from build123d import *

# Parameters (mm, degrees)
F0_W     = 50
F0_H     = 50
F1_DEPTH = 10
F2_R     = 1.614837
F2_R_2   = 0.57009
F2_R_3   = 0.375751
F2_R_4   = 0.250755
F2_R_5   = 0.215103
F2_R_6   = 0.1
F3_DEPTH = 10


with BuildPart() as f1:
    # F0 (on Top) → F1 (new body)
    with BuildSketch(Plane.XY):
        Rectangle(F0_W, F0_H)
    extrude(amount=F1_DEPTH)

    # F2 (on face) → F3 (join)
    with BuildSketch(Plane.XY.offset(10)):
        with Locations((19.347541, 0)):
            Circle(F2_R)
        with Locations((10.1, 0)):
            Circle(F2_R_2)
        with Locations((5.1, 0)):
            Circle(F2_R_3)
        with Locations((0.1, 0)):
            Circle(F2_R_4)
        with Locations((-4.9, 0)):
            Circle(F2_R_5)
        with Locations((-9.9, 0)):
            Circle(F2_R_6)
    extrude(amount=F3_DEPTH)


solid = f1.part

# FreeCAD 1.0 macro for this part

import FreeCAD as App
import Part
import Sketcher
from FreeCAD import Vector
Q = App.Units.Quantity

doc = App.newDocument("Part")
params = doc.addObject("Spreadsheet::Sheet", "Params")
for row, (alias, value) in enumerate([
    ("sketch1_width", "50 mm"),
    ("pad1_length", "10 mm"),
    ("sketch2_diameter", "0.2 mm"),
    ("pad2_length", "10 mm"),
], start=1):
    params.set(f"A{row}", alias)
    params.set(f"B{row}", "=" + value)
    params.setAlias(f"B{row}", alias)

body = doc.addObject("PartDesign::Body", "Body")

# Sketch on XY plane
sketch1 = body.newObject("Sketcher::SketchObject", "Sketch")
sketch1.AttachmentSupport = (doc.getObject("XY_Plane"), [""])
sketch1.MapMode = "FlatFace"
sketch1.addGeometry(Part.LineSegment(Vector(-25, 25, 0), Vector(-25, -25, 0)), False)
sketch1.addGeometry(Part.LineSegment(Vector(-25, -25, 0), Vector(25, -25, 0)), False)
sketch1.addGeometry(Part.LineSegment(Vector(25, -25, 0), Vector(25, 25, 0)), False)
sketch1.addGeometry(Part.LineSegment(Vector(25, 25, 0), Vector(-25, 25, 0)), False)
sketch1.addConstraint(Sketcher.Constraint("Coincident", 0, 2, 1, 1))
sketch1.addConstraint(Sketcher.Constraint("Coincident", 1, 2, 2, 1))
sketch1.addConstraint(Sketcher.Constraint("Coincident", 2, 2, 3, 1))
sketch1.addConstraint(Sketcher.Constraint("Coincident", 3, 2, 0, 1))
sketch1.addConstraint(Sketcher.Constraint("Vertical", 0))
sketch1.addConstraint(Sketcher.Constraint("Horizontal", 1))
sketch1.addConstraint(Sketcher.Constraint("Vertical", 2))
sketch1.addConstraint(Sketcher.Constraint("Horizontal", 3))
sketch1.addConstraint(Sketcher.Constraint("Symmetric", 0, 2, 2, 2, -1, 1))
sketch1.addConstraint(Sketcher.Constraint("Equal", 3, 0))
sketch1.addConstraint(Sketcher.Constraint("DistanceX", 1, 1, 1, 2, Q("50 mm")))
sketch1.setExpression("Constraints[10]", "Params.sketch1_width")
pad1 = body.newObject("PartDesign::Pad", "Pad")
pad1.Profile = sketch1
pad1.setExpression("Length", "Params.pad1_length")

# Sketch on XY plane
sketch2 = body.newObject("Sketcher::SketchObject", "Sketch001")
sketch2.AttachmentSupport = (doc.getObject("XY_Plane"), [""])
sketch2.MapMode = "FlatFace"
sketch2.AttachmentOffset = App.Placement(Vector(0, 0, 10), App.Rotation())
sketch2.addGeometry(Part.Circle(Vector(19.35, 0, 0), Vector(0, 0, 1), 1.61), False)
sketch2.addGeometry(Part.Circle(Vector(10.1, 0, 0), Vector(0, 0, 1), 0.57), False)
sketch2.addGeometry(Part.Circle(Vector(5.1, 0, 0), Vector(0, 0, 1), 0.38), False)
sketch2.addGeometry(Part.Circle(Vector(0.1, 0, 0), Vector(0, 0, 1), 0.25), False)
sketch2.addGeometry(Part.Circle(Vector(-4.9, 0, 0), Vector(0, 0, 1), 0.22), False)
sketch2.addGeometry(Part.Circle(Vector(-9.9, 0, 0), Vector(0, 0, 1), 0.1), False)
sketch2.addConstraint(Sketcher.Constraint("PointOnObject", 0, 3, -1))
sketch2.addConstraint(Sketcher.Constraint("PointOnObject", 1, 3, -1))
sketch2.addConstraint(Sketcher.Constraint("PointOnObject", 2, 3, -1))
sketch2.addConstraint(Sketcher.Constraint("PointOnObject", 3, 3, -1))
sketch2.addConstraint(Sketcher.Constraint("PointOnObject", 4, 3, -1))
sketch2.addConstraint(Sketcher.Constraint("PointOnObject", 5, 3, -1))
sketch2.addConstraint(Sketcher.Constraint("Diameter", 5, Q("0.2 mm")))
sketch2.addConstraint(Sketcher.Constraint("DistanceX", 2, 3, 1, 3, Q("5 mm")))
sketch2.addConstraint(Sketcher.Constraint("DistanceX", 3, 3, 2, 3, Q("5 mm")))
sketch2.addConstraint(Sketcher.Constraint("DistanceX", 4, 3, 3, 3, Q("5 mm")))
sketch2.addConstraint(Sketcher.Constraint("DistanceX", 5, 3, 4, 3, Q("5 mm")))
sketch2.addConstraint(Sketcher.Constraint("DistanceX", -1, 1, 1, 3, Q("10.1 mm")))
sketch2.addConstraint(Sketcher.Constraint("Diameter", 1, Q("1.14018 mm")))
sketch2.addConstraint(Sketcher.Constraint("Diameter", 3, Q("0.50151 mm")))
sketch2.addConstraint(Sketcher.Constraint("Diameter", 0, Q("3.229674 mm")))
sketch2.addConstraint(Sketcher.Constraint("Diameter", 2, Q("0.751502 mm")))
sketch2.addConstraint(Sketcher.Constraint("Diameter", 4, Q("0.430206 mm")))
sketch2.addConstraint(Sketcher.Constraint("DistanceX", -1, 1, 0, 3, Q("19.347541 mm")))
sketch2.setExpression("Constraints[6]", "Params.sketch2_diameter")
pad2 = body.newObject("PartDesign::Pad", "Pad001")
pad2.Profile = sketch2
pad2.setExpression("Length", "Params.pad2_length")

doc.recompute()
